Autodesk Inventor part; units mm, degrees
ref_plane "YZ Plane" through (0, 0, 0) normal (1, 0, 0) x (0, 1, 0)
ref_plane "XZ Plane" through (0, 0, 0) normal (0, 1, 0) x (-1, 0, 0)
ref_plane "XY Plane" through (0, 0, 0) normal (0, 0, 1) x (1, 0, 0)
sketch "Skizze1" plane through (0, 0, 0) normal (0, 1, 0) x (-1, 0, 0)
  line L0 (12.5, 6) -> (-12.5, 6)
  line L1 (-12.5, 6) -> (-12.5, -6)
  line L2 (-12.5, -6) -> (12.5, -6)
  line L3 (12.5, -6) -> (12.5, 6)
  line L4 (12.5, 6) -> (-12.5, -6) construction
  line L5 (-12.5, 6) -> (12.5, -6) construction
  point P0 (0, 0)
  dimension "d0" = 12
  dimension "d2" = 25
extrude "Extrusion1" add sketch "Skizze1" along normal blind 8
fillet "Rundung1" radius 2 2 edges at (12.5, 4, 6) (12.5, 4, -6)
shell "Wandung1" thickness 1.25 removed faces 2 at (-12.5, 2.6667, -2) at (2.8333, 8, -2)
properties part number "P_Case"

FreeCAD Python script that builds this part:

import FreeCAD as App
import Part
import Sketcher

V = App.Vector


def edges_at(feature, points):
    """Names of the edges that pass closest to the given points."""
    edges = feature.Shape.Edges
    near = lambda p: min(range(len(edges)), key=lambda i: edges[i].distToShape(Part.Vertex(*p))[0])
    return sorted({f"Edge{near(p) + 1}" for p in points})


def faces_at(feature, points):
    """Names of the faces that lie closest to the given points."""
    faces = feature.Shape.Faces
    near = lambda p: min(range(len(faces)), key=lambda i: faces[i].distToShape(Part.Vertex(*p))[0])
    return sorted({f"Face{near(p) + 1}" for p in points})

doc = App.newDocument("Part")
params = doc.addObject("Spreadsheet::Sheet", "Params")
for row, (alias, value) in enumerate([
    ("sketch1_width", "25 mm"),
    ("sketch1_height", "12 mm"),
    ("pad1_length", "8 mm"),
    ("fillet_radius", "2 mm"),
    ("thickness_wall", "1.25 mm"),
], start=1):
    params.set(f"A{row}", alias)
    params.set(f"B{row}", "=" + value)
    params.setAlias(f"B{row}", alias)

body = doc.addObject("PartDesign::Body", "Body")

sketch1 = doc.addObject("Sketcher::SketchObject", "Sketch")
body.addObject(sketch1)
sketch1.AttachmentSupport = (doc.XZ_Plane, [""])
sketch1.MapMode = "FlatFace"
sketch1.addGeometry(Part.LineSegment(V(-12, -6, 0), V(-12, 6, 0)), False)
sketch1.addGeometry(Part.LineSegment(V(-12, 6, 0), V(12, 6, 0)), False)
sketch1.addGeometry(Part.LineSegment(V(12, 6, 0), V(12, -6, 0)), False)
sketch1.addGeometry(Part.LineSegment(V(12, -6, 0), V(-12, -6, 0)), False)
sketch1.addConstraint(Sketcher.Constraint("Coincident", 0, 2, 1, 1))
sketch1.addConstraint(Sketcher.Constraint("Coincident", 1, 2, 2, 1))
sketch1.addConstraint(Sketcher.Constraint("Coincident", 2, 2, 3, 1))
sketch1.addConstraint(Sketcher.Constraint("Coincident", 3, 2, 0, 1))
sketch1.addConstraint(Sketcher.Constraint("Vertical", 0))
sketch1.addConstraint(Sketcher.Constraint("Horizontal", 1))
sketch1.addConstraint(Sketcher.Constraint("Vertical", 2))
sketch1.addConstraint(Sketcher.Constraint("Horizontal", 3))
sketch1.addConstraint(Sketcher.Constraint("Symmetric", 0, 2, 2, 2, -1, 1))
sketch1.addConstraint(Sketcher.Constraint("DistanceX", 1, 1, 1, 2, 25.0))
sketch1.addConstraint(Sketcher.Constraint("DistanceY", 0, 1, 0, 2, 12.0))
sketch1.setExpression("Constraints[9]", "Params.sketch1_width")
sketch1.setExpression("Constraints[10]", "Params.sketch1_height")
pad1 = doc.addObject("PartDesign::Pad", "Pad")
body.addObject(pad1)
pad1.Profile = sketch1
pad1.setExpression("Length", "Params.pad1_length")
pad1.Reversed = True
doc.recompute()

fillet = doc.addObject("PartDesign::Fillet", "Fillet")
body.addObject(fillet)
fillet.Base = (pad1, edges_at(pad1, [(12.5, 4, 6), (12.5, 4, -6)]))
fillet.setExpression("Radius", "Params.fillet_radius")
doc.recompute()

thickness = doc.addObject("PartDesign::Thickness", "Thickness")
body.addObject(thickness)
thickness.Base = (fillet, faces_at(fillet, [(-12.5, 2.667, -2), (2.833, 8, -2)]))
thickness.setExpression("Value", "Params.thickness_wall")
thickness.Reversed = True
thickness.Join = "Intersection"

doc.recompute()
